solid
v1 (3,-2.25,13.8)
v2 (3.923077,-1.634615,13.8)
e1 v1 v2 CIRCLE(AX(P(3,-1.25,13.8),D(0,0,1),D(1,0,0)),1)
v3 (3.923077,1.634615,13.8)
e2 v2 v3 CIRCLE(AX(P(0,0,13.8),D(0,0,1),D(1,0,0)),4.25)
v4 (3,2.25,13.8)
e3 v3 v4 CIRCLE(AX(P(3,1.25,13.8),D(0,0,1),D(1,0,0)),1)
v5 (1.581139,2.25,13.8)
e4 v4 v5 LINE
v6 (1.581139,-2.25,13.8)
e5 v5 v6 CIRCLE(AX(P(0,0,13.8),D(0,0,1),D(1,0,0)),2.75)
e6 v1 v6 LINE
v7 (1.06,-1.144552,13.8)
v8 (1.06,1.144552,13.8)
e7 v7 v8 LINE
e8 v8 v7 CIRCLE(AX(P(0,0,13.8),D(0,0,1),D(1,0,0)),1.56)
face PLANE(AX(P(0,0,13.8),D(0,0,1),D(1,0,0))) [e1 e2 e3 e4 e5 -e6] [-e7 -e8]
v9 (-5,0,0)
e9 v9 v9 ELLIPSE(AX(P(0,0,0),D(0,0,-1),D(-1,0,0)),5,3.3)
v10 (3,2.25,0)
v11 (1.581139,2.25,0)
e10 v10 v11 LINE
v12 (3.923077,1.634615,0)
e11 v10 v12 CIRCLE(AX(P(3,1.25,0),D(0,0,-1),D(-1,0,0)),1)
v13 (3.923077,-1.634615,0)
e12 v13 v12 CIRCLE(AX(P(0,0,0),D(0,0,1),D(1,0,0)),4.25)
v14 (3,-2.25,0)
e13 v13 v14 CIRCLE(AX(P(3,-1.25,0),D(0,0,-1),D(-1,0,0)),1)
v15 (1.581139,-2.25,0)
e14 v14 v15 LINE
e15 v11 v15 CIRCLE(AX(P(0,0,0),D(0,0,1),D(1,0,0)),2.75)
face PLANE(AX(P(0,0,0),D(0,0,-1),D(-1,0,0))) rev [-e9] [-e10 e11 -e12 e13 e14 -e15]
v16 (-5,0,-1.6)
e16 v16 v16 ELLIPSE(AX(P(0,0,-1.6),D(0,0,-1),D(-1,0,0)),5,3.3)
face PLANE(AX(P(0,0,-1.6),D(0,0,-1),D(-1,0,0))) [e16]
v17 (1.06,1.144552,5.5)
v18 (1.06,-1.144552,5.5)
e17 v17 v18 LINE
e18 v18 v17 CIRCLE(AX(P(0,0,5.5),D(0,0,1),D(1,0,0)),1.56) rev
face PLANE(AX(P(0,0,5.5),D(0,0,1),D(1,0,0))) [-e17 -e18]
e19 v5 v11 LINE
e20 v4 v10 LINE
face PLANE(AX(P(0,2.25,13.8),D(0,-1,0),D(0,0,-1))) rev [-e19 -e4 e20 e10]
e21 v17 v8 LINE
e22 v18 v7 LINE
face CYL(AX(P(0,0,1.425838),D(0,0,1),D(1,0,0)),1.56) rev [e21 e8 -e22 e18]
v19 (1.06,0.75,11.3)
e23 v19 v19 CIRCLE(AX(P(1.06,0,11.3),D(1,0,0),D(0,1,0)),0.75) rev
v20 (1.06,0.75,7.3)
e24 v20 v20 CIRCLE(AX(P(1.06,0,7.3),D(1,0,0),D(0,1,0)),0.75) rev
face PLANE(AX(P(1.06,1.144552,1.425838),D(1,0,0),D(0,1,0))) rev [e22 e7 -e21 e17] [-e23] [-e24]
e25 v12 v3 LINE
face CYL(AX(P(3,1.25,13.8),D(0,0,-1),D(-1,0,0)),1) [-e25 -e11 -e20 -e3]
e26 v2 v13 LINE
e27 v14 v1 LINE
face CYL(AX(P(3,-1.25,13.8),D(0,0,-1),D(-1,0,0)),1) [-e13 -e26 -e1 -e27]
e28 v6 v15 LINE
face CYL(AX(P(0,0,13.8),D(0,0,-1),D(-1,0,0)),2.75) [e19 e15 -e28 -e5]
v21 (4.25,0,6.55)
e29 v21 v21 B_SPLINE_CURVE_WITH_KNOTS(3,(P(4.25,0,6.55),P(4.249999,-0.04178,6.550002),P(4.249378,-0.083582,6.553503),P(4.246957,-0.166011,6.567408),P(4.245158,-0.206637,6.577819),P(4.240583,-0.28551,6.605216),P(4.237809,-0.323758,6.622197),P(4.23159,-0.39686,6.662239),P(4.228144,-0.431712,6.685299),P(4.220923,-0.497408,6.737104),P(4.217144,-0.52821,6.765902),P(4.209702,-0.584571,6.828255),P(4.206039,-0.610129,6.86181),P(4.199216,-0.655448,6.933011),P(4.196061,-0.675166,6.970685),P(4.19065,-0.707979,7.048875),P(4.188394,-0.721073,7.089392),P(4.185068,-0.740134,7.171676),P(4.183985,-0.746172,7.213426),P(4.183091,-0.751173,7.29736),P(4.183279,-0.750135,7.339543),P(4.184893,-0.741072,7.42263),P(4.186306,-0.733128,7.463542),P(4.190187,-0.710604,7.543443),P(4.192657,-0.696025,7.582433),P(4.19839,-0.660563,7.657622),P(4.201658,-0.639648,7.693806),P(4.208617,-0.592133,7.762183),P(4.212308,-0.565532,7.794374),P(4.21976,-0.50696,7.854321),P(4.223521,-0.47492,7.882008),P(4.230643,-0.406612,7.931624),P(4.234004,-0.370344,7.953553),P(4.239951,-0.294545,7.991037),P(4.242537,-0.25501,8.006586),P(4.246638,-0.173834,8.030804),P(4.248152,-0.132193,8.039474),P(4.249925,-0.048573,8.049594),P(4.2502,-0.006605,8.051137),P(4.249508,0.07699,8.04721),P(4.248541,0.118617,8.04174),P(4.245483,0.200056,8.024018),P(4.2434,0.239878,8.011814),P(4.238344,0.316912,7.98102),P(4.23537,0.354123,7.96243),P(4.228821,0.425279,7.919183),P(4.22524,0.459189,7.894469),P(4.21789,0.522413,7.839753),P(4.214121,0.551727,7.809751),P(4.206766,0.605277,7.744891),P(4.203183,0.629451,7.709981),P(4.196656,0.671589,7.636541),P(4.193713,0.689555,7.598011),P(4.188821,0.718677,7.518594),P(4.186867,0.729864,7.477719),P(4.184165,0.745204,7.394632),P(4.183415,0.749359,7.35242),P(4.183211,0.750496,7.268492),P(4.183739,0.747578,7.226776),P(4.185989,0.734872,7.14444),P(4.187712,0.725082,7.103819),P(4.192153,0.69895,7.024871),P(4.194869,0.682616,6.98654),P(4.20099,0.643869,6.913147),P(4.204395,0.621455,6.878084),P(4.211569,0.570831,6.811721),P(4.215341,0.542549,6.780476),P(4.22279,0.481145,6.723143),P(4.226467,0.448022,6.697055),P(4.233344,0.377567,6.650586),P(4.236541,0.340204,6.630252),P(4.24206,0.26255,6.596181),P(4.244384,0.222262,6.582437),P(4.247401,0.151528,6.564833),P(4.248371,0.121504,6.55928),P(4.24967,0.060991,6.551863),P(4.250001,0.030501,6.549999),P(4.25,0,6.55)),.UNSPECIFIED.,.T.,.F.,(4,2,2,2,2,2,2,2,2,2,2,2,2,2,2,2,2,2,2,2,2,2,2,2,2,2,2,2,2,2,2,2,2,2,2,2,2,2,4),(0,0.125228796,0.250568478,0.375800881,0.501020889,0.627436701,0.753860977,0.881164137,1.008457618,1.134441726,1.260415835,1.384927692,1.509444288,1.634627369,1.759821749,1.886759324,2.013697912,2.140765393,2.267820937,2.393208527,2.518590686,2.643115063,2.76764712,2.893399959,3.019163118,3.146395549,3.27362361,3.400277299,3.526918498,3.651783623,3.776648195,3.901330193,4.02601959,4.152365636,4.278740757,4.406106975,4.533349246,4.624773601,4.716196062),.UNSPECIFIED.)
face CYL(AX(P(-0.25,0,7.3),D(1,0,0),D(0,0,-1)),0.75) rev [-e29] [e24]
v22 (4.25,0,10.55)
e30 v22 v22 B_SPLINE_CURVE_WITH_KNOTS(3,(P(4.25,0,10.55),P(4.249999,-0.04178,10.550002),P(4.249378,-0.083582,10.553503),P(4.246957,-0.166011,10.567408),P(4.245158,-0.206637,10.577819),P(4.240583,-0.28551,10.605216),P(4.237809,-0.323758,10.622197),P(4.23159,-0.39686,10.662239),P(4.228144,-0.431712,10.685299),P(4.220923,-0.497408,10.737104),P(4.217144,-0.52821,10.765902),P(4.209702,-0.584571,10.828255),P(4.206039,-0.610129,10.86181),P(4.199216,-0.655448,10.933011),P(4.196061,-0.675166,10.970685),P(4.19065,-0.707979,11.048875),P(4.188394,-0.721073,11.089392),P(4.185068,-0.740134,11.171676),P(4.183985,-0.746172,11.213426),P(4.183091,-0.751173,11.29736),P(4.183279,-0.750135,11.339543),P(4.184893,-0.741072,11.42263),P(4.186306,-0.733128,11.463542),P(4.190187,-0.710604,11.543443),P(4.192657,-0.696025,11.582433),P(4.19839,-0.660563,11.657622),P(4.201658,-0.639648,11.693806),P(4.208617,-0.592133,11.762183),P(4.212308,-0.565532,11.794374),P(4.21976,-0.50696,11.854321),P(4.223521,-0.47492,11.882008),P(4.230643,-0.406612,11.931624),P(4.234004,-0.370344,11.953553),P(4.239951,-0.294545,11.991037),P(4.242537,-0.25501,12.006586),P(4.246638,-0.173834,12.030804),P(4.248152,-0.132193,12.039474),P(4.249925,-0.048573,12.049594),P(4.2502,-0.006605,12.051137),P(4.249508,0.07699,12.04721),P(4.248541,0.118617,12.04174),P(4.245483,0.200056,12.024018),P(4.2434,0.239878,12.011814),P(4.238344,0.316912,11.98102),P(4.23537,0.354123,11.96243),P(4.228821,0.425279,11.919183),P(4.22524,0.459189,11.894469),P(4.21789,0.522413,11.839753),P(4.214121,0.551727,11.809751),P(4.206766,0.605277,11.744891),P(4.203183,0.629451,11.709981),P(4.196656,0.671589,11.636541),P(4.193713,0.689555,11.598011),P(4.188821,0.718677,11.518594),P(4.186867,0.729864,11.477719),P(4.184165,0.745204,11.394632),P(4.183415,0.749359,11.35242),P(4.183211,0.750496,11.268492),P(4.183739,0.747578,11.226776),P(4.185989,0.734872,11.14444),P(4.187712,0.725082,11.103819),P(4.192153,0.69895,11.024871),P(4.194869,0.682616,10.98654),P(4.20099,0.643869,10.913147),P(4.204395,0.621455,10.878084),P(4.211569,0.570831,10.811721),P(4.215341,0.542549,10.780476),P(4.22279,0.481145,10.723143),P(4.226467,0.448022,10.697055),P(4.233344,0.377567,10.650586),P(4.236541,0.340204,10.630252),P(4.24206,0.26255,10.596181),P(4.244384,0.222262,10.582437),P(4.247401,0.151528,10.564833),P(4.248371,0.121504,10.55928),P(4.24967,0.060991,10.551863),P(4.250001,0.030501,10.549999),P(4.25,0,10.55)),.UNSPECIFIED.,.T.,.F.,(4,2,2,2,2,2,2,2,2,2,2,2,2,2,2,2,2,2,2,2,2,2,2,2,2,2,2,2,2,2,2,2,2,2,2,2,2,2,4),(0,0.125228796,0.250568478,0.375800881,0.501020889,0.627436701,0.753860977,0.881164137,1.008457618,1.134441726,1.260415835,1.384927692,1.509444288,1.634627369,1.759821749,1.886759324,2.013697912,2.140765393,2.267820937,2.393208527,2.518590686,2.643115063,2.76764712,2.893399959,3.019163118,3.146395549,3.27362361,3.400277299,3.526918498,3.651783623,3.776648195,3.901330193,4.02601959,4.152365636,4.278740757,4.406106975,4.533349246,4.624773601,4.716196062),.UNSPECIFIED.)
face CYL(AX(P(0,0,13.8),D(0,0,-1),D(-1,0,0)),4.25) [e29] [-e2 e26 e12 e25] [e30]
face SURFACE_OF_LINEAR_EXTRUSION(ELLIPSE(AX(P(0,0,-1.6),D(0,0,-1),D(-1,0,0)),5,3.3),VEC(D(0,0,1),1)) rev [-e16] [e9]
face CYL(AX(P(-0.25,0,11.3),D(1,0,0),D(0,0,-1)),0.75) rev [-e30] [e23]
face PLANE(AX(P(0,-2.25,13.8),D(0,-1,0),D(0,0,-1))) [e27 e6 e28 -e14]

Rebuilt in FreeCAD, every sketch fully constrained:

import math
import FreeCAD as App
import Part
import Sketcher
from FreeCAD import Vector
Q = App.Units.Quantity


def edges_at(feature, points):
    """Names of the edges that pass closest to the given points."""
    edges = feature.Shape.Edges
    near = lambda p: min(range(len(edges)), key=lambda i: edges[i].distToShape(Part.Vertex(*p))[0])
    return sorted({f"Edge{near(p) + 1}" for p in points})

doc = App.newDocument("Part")
params = doc.addObject("Spreadsheet::Sheet", "Params")
for row, (alias, value) in enumerate([
    ("sketch1_radius", "4.25 mm"),
    ("sketch1_radius2", "2.75 mm"),
    ("pad1_length", "13.8 mm"),
    ("sketch2_radius", "1.5 mm"),
    ("pocket1_length", "8.3 mm"),
    ("sketch3_diameter", "1.5 mm"),
    ("pocket2_length", "4.5 mm"),
    ("pad2_length", "1.6 mm"),
    ("fillet_radius", "1 mm"),
    ("sketch5_radius", "1.5 mm"),
    ("sketch5_radius2", "1.56 mm"),
    ("pocket3_length", "8.3 mm"),
], start=1):
    params.set(f"A{row}", alias)
    params.set(f"B{row}", "=" + value)
    params.setAlias(f"B{row}", alias)

body = doc.addObject("PartDesign::Body", "Body")

sketch1 = body.newObject("Sketcher::SketchObject", "Sketch")
sketch1.AttachmentSupport = (doc.getObject("XY_Plane"), [""])
sketch1.MapMode = "FlatFace"
sketch1.addGeometry(Part.LineSegment(Vector(1.581139, -2.25, 0), Vector(3.605551, -2.25, 0)), False)
sketch1.addGeometry(Part.ArcOfCircle(Part.Circle(Vector(0, 0, 0), Vector(0, 0, 1), 4.25), math.radians(-31.965719), math.radians(31.965719)), False)
sketch1.addGeometry(Part.LineSegment(Vector(3.605551, 2.25, 0), Vector(1.581139, 2.25, 0)), False)
sketch1.addGeometry(Part.ArcOfCircle(Part.Circle(Vector(0, 0, 0), Vector(0, 0, 1), 2.75), math.radians(54.903199), math.radians(305.096801)), False)
sketch1.addConstraint(Sketcher.Constraint("Coincident", 0, 2, 1, 1))
sketch1.addConstraint(Sketcher.Constraint("Coincident", 1, 2, 2, 1))
sketch1.addConstraint(Sketcher.Constraint("Coincident", 2, 2, 3, 1))
sketch1.addConstraint(Sketcher.Constraint("Coincident", 3, 2, 0, 1))
sketch1.addConstraint(Sketcher.Constraint("Horizontal", 0))
sketch1.addConstraint(Sketcher.Constraint("Horizontal", 2))
sketch1.addConstraint(Sketcher.Constraint("Coincident", 1, 3, -1, 1))
sketch1.addConstraint(Sketcher.Constraint("Coincident", 3, 3, -1, 1))
sketch1.addConstraint(Sketcher.Constraint("Vertical", 0, 2, 1, 2))
sketch1.addConstraint(Sketcher.Constraint("Radius", 1, Q("4.25 mm")))
sketch1.addConstraint(Sketcher.Constraint("Radius", 3, Q("2.75 mm")))
sketch1.addConstraint(Sketcher.Constraint("DistanceY", 0, 2, 1, 2, Q("4.5 mm")))
sketch1.setExpression("Constraints[9]", "Params.sketch1_radius")
sketch1.setExpression("Constraints[10]", "Params.sketch1_radius2")
pad1 = body.newObject("PartDesign::Pad", "Pad")
pad1.Profile = sketch1
pad1.setExpression("Length", "Params.pad1_length")

sketch2 = body.newObject("Sketcher::SketchObject", "Sketch001")
sketch2.AttachmentSupport = (doc.getObject("XY_Plane"), [""])
sketch2.MapMode = "FlatFace"
sketch2.AttachmentOffset = App.Placement(Vector(0, 0, 13.8), App.Rotation())
sketch2.addGeometry(Part.LineSegment(Vector(1, -1.118034, 0), Vector(1, 1.118034, 0)), False)
sketch2.addGeometry(Part.ArcOfCircle(Part.Circle(Vector(0, 0, 0), Vector(0, 0, 1), 1.5), math.radians(48.189685), math.radians(311.810315)), False)
sketch2.addConstraint(Sketcher.Constraint("Coincident", 0, 1, 1, 2))
sketch2.addConstraint(Sketcher.Constraint("Coincident", 1, 1, 0, 2))
sketch2.addConstraint(Sketcher.Constraint("Vertical", 0))
sketch2.addConstraint(Sketcher.Constraint("Coincident", 1, 3, -1, 1))
sketch2.addConstraint(Sketcher.Constraint("Radius", 1, Q("1.5 mm")))
sketch2.addConstraint(Sketcher.Constraint("DistanceX", -1, 1, 0, 1, Q("1 mm")))
sketch2.setExpression("Constraints[4]", "Params.sketch2_radius")
pocket1 = body.newObject("PartDesign::Pocket", "Pocket")
pocket1.Profile = sketch2
pocket1.setExpression("Length", "Params.pocket1_length")

sketch3 = body.newObject("Sketcher::SketchObject", "Sketch002")
sketch3.AttachmentSupport = (doc.getObject("YZ_Plane"), [""])
sketch3.MapMode = "FlatFace"
sketch3.AttachmentOffset = App.Placement(Vector(0, 0, 4.25), App.Rotation())
sketch3.addGeometry(Part.Circle(Vector(0, 11.3, 0), Vector(0, 0, 1), 0.75), False)
sketch3.addGeometry(Part.Circle(Vector(0, 7.3, 0), Vector(0, 0, 1), 0.75), False)
sketch3.addConstraint(Sketcher.Constraint("Equal", 0, 1))
sketch3.addConstraint(Sketcher.Constraint("PointOnObject", 0, 3, -2))
sketch3.addConstraint(Sketcher.Constraint("PointOnObject", 1, 3, -2))
sketch3.addConstraint(Sketcher.Constraint("Diameter", 0, Q("1.5 mm")))
sketch3.addConstraint(Sketcher.Constraint("DistanceY", 1, 3, 0, 3, Q("4 mm")))
sketch3.addConstraint(Sketcher.Constraint("DistanceY", -1, 1, 0, 3, Q("11.3 mm")))
sketch3.setExpression("Constraints[3]", "Params.sketch3_diameter")
pocket2 = body.newObject("PartDesign::Pocket", "Pocket001")
pocket2.Profile = sketch3
pocket2.setExpression("Length", "Params.pocket2_length")

sketch4 = body.newObject("Sketcher::SketchObject", "Sketch003")
sketch4.AttachmentSupport = (doc.getObject("XY_Plane"), [""])
sketch4.MapMode = "FlatFace"
sketch4.addGeometry(Part.Ellipse(Vector(-5, 0, 0), Vector(0, -3.3, 0), Vector(0, 0, 0)), False)
sketch4.addConstraint(Sketcher.Constraint("Block", 0))
pad2 = body.newObject("PartDesign::Pad", "Pad001")
pad2.Profile = sketch4
pad2.setExpression("Length", "Params.pad2_length")
pad2.Reversed = True
doc.recompute()

fillet = body.newObject("PartDesign::Fillet", "Fillet")
fillet.Base = (pad2, edges_at(pad2, [(3.606, -2.25, 6.9), (3.606, 2.25, 6.9)]))
fillet.setExpression("Radius", "Params.fillet_radius")

sketch5 = body.newObject("Sketcher::SketchObject", "Sketch004")
sketch5.AttachmentSupport = (doc.getObject("XY_Plane"), [""])
sketch5.MapMode = "FlatFace"
sketch5.AttachmentOffset = App.Placement(Vector(0, 0, 13.8), App.Rotation())
sketch5.addGeometry(Part.LineSegment(Vector(1.06, -1.144552, 0), Vector(1.06, 1.144552, 0)), False)
sketch5.addGeometry(Part.ArcOfCircle(Part.Circle(Vector(0, 0, 0), Vector(0, 0, 1), 1.56), math.radians(47.196418), math.radians(312.803582)), False)
sketch5.addGeometry(Part.LineSegment(Vector(1, 1.118034, 0), Vector(1, -1.118034, 0)), False)
sketch5.addGeometry(Part.ArcOfCircle(Part.Circle(Vector(0, 0, 0), Vector(0, 0, 1), 1.5), math.radians(48.189685), math.radians(311.810315)), False)
sketch5.addConstraint(Sketcher.Constraint("Coincident", 0, 1, 1, 2))
sketch5.addConstraint(Sketcher.Constraint("Coincident", 1, 1, 0, 2))
sketch5.addConstraint(Sketcher.Constraint("Coincident", 2, 1, 3, 1))
sketch5.addConstraint(Sketcher.Constraint("Coincident", 3, 2, 2, 2))
sketch5.addConstraint(Sketcher.Constraint("Vertical", 0))
sketch5.addConstraint(Sketcher.Constraint("Vertical", 2))
sketch5.addConstraint(Sketcher.Constraint("Coincident", 1, 3, -1, 1))
sketch5.addConstraint(Sketcher.Constraint("Coincident", 3, 3, -1, 1))
sketch5.addConstraint(Sketcher.Constraint("Radius", 3, Q("1.5 mm")))
sketch5.addConstraint(Sketcher.Constraint("Radius", 1, Q("1.56 mm")))
sketch5.addConstraint(Sketcher.Constraint("DistanceX", -1, 1, 2, 1, Q("1 mm")))
sketch5.addConstraint(Sketcher.Constraint("DistanceX", -1, 1, 0, 1, Q("1.06 mm")))
sketch5.setExpression("Constraints[8]", "Params.sketch5_radius")
sketch5.setExpression("Constraints[9]", "Params.sketch5_radius2")
pocket3 = body.newObject("PartDesign::Pocket", "Pocket002")
pocket3.Profile = sketch5
pocket3.setExpression("Length", "Params.pocket3_length")

doc.recompute()
